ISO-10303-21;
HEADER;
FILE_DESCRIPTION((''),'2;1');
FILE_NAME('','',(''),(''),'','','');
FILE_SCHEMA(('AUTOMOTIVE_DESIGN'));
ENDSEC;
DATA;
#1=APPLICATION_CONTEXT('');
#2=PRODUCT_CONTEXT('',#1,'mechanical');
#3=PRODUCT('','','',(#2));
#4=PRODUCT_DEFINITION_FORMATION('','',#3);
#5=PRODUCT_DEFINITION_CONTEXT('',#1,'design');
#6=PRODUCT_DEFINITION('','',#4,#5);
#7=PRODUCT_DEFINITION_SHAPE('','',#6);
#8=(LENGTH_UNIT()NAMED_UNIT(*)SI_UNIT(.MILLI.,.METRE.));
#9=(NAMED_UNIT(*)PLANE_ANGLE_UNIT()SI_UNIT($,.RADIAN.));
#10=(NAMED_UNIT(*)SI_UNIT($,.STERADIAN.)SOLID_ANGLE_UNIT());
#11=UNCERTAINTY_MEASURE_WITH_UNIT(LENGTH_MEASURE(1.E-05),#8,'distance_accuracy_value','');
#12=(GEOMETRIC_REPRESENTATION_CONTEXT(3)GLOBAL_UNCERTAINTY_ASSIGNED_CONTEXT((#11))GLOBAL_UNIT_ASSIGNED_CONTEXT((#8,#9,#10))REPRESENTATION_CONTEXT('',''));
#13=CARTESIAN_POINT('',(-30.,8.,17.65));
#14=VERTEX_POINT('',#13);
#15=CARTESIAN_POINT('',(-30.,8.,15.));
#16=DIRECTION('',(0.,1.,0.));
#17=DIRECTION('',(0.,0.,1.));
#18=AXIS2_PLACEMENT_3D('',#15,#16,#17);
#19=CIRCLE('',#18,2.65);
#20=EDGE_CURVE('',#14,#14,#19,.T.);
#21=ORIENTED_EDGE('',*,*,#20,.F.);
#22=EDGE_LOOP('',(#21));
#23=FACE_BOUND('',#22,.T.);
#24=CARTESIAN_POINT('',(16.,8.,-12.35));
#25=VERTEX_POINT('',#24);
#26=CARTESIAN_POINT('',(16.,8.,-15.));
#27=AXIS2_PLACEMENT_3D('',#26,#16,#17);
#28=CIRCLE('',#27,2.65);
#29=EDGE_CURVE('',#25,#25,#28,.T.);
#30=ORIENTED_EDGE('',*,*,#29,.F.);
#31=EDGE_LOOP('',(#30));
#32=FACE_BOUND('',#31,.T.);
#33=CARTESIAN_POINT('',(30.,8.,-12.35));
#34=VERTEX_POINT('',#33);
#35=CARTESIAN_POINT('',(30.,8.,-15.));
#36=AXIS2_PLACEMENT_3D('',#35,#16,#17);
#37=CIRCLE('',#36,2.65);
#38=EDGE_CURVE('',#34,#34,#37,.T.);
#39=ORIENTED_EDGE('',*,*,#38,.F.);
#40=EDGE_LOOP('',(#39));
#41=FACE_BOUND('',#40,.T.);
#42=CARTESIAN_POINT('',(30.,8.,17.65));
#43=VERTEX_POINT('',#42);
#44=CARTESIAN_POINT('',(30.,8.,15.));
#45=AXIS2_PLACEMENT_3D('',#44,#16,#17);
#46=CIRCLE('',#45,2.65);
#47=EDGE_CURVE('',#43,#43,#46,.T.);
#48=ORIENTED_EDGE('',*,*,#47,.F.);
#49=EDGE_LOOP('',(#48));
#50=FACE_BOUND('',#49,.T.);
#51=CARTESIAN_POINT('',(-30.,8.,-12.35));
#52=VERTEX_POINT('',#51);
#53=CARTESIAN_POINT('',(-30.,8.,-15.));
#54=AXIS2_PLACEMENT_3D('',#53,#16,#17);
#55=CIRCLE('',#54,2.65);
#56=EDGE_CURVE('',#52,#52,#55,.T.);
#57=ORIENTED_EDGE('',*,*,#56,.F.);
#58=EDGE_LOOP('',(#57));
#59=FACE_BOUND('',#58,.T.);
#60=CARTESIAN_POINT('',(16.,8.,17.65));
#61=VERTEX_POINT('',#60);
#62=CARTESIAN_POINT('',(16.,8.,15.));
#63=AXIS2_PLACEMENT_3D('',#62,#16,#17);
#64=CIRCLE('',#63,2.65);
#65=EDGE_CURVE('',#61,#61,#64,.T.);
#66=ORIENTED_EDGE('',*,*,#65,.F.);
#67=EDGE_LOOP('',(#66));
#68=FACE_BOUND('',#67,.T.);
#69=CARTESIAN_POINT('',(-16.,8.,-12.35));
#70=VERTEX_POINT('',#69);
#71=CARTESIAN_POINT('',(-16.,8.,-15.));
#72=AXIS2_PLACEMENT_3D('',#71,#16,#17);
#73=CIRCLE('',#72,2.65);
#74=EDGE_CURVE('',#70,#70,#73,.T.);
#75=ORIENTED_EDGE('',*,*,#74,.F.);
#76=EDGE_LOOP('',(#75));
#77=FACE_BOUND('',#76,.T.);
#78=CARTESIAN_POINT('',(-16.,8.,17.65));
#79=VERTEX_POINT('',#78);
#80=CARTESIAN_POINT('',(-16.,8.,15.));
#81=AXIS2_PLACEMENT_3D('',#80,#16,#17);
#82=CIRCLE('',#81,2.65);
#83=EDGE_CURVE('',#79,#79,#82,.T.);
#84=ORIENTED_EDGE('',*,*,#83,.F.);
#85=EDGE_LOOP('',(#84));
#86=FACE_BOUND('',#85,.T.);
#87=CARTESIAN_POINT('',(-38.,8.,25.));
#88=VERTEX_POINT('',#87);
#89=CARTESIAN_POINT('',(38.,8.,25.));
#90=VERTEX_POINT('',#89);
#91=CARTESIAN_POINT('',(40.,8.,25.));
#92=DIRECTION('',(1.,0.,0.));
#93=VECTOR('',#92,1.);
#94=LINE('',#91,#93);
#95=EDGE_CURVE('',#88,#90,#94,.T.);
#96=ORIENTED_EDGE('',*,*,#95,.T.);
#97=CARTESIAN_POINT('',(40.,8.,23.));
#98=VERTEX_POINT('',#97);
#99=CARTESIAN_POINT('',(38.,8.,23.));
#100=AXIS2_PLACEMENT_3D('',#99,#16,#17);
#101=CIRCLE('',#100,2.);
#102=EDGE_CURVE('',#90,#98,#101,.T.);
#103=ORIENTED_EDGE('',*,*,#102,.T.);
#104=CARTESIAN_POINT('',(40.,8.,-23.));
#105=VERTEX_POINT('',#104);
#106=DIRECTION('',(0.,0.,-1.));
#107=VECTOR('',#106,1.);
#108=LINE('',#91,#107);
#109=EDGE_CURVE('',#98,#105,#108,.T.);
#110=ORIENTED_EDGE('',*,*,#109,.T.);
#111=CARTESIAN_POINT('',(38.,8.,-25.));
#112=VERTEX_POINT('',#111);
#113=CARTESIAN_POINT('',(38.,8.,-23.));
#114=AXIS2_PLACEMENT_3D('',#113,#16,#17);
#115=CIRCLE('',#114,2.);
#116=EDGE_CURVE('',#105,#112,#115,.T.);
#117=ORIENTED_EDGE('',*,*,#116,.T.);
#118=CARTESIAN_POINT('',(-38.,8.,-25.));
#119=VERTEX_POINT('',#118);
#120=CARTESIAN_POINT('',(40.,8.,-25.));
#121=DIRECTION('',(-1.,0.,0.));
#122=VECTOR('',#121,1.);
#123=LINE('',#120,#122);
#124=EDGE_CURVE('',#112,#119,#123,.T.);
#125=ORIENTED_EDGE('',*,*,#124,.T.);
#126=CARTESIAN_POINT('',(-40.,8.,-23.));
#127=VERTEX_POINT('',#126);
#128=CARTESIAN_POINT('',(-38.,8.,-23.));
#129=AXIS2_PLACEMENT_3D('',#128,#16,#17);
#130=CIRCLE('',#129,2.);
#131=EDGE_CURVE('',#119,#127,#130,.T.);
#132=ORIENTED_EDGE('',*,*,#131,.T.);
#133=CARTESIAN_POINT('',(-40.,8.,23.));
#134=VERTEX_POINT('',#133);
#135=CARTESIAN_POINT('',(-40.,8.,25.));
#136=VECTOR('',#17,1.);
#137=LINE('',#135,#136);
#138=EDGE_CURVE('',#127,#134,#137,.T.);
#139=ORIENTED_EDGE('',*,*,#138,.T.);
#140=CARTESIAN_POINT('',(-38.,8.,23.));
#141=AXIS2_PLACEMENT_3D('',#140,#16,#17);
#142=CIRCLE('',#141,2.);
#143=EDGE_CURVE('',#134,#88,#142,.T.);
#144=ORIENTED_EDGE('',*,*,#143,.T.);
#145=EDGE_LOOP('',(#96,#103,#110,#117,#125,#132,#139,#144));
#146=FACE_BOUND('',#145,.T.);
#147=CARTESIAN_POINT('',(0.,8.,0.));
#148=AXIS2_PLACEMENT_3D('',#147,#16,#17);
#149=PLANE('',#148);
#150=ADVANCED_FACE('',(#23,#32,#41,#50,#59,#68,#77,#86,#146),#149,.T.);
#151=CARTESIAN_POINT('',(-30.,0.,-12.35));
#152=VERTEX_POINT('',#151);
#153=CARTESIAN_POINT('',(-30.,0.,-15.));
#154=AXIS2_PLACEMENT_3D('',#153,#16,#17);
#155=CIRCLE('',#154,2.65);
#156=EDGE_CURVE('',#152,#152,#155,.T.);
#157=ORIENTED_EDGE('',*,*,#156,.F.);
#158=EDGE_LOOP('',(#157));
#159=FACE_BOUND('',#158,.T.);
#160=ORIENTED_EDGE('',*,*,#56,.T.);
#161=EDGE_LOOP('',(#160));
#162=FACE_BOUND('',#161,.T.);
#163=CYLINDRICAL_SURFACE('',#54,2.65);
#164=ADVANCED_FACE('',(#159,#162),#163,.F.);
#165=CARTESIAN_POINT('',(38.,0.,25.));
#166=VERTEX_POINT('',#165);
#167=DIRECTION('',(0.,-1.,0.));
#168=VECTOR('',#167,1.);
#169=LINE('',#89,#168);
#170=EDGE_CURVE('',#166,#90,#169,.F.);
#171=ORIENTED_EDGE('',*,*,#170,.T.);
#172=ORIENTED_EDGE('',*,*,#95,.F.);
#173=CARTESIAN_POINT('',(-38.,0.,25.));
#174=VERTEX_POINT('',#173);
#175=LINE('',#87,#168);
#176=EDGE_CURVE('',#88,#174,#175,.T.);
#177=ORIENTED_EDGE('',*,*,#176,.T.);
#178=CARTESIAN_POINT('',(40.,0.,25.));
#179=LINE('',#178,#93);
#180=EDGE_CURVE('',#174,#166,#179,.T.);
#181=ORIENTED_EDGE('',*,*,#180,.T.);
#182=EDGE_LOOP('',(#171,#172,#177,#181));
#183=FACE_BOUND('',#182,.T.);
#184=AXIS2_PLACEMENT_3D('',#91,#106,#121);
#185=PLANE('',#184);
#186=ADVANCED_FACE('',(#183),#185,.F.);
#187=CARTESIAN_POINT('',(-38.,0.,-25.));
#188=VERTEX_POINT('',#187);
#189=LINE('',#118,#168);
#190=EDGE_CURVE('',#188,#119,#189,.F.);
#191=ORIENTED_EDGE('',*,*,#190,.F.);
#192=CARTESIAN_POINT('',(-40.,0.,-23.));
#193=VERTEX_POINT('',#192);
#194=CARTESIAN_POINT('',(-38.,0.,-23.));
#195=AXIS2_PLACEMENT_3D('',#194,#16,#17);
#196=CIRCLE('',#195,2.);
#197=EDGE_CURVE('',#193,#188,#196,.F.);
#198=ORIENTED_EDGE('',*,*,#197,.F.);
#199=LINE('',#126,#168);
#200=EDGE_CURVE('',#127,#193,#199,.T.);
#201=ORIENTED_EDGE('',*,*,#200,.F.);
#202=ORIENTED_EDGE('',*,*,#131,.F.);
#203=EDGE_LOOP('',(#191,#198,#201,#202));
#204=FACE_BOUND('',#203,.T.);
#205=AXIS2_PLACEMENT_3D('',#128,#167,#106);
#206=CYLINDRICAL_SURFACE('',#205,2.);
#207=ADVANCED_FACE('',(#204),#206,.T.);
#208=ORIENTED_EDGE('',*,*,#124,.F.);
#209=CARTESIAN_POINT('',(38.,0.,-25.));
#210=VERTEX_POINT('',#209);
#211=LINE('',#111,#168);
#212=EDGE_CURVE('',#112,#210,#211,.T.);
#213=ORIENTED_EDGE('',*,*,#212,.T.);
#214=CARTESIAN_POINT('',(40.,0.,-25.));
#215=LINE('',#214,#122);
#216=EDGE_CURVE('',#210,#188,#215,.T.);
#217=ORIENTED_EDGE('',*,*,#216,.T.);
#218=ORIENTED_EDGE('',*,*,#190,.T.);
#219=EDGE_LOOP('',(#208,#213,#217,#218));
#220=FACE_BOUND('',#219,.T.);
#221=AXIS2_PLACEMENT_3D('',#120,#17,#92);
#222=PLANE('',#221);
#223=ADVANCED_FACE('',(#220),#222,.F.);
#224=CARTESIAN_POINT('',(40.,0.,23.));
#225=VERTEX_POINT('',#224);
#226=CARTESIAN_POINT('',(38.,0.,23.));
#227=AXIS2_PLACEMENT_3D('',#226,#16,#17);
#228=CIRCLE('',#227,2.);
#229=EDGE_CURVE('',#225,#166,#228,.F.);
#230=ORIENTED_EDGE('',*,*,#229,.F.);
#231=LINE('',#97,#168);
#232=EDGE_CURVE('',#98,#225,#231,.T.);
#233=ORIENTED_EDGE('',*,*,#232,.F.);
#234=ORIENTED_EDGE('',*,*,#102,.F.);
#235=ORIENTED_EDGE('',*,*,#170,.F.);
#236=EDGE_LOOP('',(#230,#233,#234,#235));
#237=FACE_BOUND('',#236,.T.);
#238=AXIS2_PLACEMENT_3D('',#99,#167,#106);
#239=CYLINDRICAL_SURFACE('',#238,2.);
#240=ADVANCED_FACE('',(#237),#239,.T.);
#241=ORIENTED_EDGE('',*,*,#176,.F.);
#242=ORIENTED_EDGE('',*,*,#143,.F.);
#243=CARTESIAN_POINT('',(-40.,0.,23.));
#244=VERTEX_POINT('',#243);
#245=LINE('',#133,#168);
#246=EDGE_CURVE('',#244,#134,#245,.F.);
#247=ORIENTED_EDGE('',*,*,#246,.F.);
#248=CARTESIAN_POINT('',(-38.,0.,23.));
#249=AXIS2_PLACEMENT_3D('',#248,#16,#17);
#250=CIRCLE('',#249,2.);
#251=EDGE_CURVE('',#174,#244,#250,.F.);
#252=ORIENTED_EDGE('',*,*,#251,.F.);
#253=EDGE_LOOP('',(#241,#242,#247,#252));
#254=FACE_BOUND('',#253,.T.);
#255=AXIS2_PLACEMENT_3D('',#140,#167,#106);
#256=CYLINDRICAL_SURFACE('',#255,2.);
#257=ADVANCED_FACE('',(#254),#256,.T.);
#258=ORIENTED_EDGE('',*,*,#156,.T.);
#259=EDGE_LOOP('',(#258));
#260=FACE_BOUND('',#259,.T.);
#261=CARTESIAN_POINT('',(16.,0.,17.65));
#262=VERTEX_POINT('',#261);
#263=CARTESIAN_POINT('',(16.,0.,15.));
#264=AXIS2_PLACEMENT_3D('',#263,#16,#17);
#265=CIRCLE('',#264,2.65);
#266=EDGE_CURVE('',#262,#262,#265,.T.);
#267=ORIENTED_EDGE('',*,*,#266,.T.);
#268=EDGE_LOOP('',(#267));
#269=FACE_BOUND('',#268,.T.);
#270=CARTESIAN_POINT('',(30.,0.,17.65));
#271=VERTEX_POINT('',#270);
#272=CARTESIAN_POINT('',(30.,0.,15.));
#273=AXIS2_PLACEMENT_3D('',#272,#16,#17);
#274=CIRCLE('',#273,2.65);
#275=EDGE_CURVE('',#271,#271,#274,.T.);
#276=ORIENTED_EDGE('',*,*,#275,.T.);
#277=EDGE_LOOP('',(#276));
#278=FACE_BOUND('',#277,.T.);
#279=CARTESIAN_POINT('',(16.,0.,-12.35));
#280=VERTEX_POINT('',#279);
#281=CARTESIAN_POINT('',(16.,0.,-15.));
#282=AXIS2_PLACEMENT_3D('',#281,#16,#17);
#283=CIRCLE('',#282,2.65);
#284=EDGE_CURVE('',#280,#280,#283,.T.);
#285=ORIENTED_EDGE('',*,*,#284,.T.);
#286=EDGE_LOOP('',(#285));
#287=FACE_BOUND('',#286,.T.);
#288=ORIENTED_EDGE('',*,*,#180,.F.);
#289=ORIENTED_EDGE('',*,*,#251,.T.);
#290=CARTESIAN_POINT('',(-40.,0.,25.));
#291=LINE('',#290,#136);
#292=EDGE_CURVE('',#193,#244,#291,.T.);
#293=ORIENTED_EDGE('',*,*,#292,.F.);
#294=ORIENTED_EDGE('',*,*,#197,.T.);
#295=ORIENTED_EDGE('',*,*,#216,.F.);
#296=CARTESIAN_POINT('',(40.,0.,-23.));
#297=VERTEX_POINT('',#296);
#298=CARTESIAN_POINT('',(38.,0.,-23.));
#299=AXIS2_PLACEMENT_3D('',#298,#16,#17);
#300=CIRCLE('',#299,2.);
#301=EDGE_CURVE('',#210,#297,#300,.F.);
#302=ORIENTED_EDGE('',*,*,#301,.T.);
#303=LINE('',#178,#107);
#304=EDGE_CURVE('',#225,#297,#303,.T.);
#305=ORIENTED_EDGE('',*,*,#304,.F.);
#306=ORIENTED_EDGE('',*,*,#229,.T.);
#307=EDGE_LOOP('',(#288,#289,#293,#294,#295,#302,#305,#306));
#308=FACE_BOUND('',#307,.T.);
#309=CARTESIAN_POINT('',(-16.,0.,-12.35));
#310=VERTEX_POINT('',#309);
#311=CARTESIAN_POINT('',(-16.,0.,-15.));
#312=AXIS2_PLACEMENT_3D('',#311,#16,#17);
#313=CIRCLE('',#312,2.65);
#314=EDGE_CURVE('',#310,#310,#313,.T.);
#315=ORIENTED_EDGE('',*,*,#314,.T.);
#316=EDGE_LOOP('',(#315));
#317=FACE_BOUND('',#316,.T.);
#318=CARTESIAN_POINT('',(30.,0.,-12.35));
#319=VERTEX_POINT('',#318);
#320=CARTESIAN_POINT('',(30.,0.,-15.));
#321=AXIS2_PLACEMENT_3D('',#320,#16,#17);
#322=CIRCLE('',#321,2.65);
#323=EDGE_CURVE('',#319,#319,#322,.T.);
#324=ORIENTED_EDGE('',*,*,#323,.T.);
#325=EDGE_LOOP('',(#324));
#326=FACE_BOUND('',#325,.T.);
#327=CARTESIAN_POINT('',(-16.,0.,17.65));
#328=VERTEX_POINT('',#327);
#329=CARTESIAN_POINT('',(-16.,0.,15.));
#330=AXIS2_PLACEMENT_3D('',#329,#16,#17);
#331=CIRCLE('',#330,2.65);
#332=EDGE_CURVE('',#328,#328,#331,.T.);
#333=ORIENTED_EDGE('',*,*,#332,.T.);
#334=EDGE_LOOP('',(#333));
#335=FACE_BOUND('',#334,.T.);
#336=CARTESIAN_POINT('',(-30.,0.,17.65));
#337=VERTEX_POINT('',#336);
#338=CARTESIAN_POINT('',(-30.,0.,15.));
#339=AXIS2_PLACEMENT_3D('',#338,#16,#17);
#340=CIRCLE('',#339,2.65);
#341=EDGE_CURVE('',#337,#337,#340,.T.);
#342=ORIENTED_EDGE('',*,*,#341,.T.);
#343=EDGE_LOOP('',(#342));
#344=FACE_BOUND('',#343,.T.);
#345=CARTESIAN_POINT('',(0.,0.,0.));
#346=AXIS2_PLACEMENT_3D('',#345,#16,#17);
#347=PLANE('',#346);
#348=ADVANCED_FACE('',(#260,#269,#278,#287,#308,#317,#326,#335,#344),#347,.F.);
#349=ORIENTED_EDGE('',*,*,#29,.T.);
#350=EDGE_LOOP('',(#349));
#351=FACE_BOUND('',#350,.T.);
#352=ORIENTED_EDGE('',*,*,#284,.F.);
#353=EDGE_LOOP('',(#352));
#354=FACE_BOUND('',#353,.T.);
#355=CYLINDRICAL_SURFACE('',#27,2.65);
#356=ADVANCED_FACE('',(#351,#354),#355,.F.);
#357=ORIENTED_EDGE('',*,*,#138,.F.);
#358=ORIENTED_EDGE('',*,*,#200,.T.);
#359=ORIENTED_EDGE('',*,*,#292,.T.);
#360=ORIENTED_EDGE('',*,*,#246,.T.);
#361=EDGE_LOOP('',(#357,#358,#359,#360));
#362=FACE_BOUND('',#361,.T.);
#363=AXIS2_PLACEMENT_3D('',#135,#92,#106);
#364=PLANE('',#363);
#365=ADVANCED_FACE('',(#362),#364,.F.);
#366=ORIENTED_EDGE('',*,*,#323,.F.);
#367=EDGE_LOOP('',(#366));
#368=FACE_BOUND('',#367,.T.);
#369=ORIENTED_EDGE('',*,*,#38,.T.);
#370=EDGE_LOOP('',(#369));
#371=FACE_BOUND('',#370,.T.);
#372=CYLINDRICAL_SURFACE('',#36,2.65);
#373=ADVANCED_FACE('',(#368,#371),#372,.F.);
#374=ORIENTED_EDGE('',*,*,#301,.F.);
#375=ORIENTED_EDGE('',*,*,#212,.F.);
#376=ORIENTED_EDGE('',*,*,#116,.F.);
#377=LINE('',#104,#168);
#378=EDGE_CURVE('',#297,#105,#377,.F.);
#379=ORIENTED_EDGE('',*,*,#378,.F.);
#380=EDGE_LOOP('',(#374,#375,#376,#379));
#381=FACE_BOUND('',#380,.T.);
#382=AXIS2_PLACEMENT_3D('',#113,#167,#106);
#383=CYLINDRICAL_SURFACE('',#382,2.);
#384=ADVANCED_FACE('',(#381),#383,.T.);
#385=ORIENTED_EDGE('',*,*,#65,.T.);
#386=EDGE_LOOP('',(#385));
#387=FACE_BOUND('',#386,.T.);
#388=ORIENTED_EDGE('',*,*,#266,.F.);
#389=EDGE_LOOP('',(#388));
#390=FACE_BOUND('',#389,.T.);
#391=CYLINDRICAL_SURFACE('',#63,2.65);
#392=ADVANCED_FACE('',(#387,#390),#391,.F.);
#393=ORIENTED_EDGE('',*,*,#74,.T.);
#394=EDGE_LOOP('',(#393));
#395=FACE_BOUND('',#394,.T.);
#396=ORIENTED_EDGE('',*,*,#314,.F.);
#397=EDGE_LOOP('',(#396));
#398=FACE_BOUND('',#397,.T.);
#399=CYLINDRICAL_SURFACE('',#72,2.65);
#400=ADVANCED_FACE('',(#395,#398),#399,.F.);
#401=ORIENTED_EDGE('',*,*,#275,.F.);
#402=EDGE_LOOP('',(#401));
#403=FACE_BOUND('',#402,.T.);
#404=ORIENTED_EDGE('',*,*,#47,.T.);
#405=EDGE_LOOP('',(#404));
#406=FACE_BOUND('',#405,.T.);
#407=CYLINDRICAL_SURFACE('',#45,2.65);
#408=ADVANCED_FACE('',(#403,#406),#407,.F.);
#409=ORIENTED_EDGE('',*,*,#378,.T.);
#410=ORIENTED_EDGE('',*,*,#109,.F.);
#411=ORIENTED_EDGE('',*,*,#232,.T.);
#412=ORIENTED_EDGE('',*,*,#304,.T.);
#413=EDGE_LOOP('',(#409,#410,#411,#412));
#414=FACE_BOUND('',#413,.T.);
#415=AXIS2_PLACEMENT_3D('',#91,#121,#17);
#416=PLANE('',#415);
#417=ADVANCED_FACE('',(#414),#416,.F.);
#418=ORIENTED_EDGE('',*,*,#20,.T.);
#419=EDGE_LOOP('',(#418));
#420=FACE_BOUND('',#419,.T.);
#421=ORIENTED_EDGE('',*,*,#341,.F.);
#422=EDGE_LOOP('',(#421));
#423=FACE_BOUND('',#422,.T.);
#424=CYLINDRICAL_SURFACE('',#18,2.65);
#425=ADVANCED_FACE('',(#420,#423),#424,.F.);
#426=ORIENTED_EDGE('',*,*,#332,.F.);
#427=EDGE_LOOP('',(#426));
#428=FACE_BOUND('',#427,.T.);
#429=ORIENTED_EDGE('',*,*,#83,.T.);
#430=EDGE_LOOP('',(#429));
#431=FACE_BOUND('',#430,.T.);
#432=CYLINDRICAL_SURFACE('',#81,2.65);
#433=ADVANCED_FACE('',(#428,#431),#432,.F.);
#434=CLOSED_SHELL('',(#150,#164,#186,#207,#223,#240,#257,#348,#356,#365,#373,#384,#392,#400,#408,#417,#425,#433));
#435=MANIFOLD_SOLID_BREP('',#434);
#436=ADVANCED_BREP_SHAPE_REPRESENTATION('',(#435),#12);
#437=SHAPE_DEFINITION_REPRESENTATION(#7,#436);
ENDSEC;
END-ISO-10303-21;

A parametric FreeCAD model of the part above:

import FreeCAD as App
import Part
import Sketcher
from FreeCAD import Vector


def edges_at(feature, points):
    """Names of the edges that pass closest to the given points."""
    edges = feature.Shape.Edges
    near = lambda p: min(range(len(edges)), key=lambda i: edges[i].distToShape(Part.Vertex(*p))[0])
    return sorted({f"Edge{near(p) + 1}" for p in points})


def add_polygon(sketch, points):
    """Adds a closed chain of lines whose ends are joined by coincident constraints."""
    first, n = sketch.GeometryCount, len(points)
    for a, b in zip(points, points[1:] + points[:1]):
        sketch.addGeometry(Part.LineSegment(App.Vector(*a, 0), App.Vector(*b, 0)), False)
    for i in range(n):
        sketch.addConstraint(Sketcher.Constraint("Coincident", first + i, 2, first + (i + 1) % n, 1))

doc = App.newDocument("Part")
body = doc.addObject("PartDesign::Body", "Body")

# Sketch on XZ plane
sketch1 = body.newObject("Sketcher::SketchObject", "Sketch")
sketch1.AttachmentSupport = (doc.getObject("XZ_Plane"), [""])
sketch1.MapMode = "FlatFace"
add_polygon(sketch1, [(-40, -25), (-40, 25), (40, 25), (40, -25)])  # lines 0-3
sketch1.addConstraint(Sketcher.Constraint("Vertical", 0))
sketch1.addConstraint(Sketcher.Constraint("Horizontal", 1))
sketch1.addConstraint(Sketcher.Constraint("Vertical", 2))
sketch1.addConstraint(Sketcher.Constraint("Horizontal", 3))
sketch1.addConstraint(Sketcher.Constraint("Symmetric", 0, 2, 2, 2, -1, 1))
sketch1.addConstraint(Sketcher.Constraint("DistanceX", 1, 1, 1, 2, 80.0))
sketch1.addConstraint(Sketcher.Constraint("DistanceY", 0, 1, 0, 2, 50.0))
pad1 = body.newObject("PartDesign::Pad", "Pad")
pad1.Profile = sketch1
pad1.Length = 8
pad1.Reversed = True
doc.recompute()

fillet = body.newObject("PartDesign::Fillet", "Fillet")
fillet.Base = (pad1, edges_at(pad1, [
    (-40, 4, -25),
    (40, 4, -25),
    (40, 4, 25),
    (-40, 4, 25),
]))
fillet.Radius = 2

# Sketch on XZ plane
sketch2 = body.newObject("Sketcher::SketchObject", "Sketch001")
sketch2.AttachmentSupport = (doc.getObject("XZ_Plane"), [""])
sketch2.MapMode = "FlatFace"
sketch2.AttachmentOffset = App.Placement(Vector(0, 0, -8), App.Rotation())
sketch2.addGeometry(Part.Circle(Vector(-30, -15, 0), Vector(0, 0, 1), 2.6), False)
sketch2.addGeometry(Part.Circle(Vector(-16, -15, 0), Vector(0, 0, 1), 2.6), False)
sketch2.addGeometry(Part.Circle(Vector(-16, 15, 0), Vector(0, 0, 1), 2.6), False)
sketch2.addGeometry(Part.Circle(Vector(-30, 15, 0), Vector(0, 0, 1), 2.6), False)
sketch2.addGeometry(Part.Circle(Vector(30, 15, 0), Vector(0, 0, 1), 2.6), False)
sketch2.addGeometry(Part.Circle(Vector(16, 15, 0), Vector(0, 0, 1), 2.6), False)
sketch2.addGeometry(Part.Circle(Vector(16, -15, 0), Vector(0, 0, 1), 2.6), False)
sketch2.addGeometry(Part.Circle(Vector(30, -15, 0), Vector(0, 0, 1), 2.6), False)
sketch2.addConstraint(Sketcher.Constraint("Equal", 0, 1))
sketch2.addConstraint(Sketcher.Constraint("Equal", 1, 2))
sketch2.addConstraint(Sketcher.Constraint("Equal", 2, 3))
sketch2.addConstraint(Sketcher.Constraint("Equal", 3, 4))
sketch2.addConstraint(Sketcher.Constraint("Equal", 4, 5))
sketch2.addConstraint(Sketcher.Constraint("Equal", 5, 6))
sketch2.addConstraint(Sketcher.Constraint("Equal", 6, 7))
sketch2.addConstraint(Sketcher.Constraint("Symmetric", 0, 3, 4, 3, -1, 1))
sketch2.addConstraint(Sketcher.Constraint("Symmetric", 1, 3, 5, 3, -1, 1))
sketch2.addConstraint(Sketcher.Constraint("Symmetric", 2, 3, 6, 3, -1, 1))
sketch2.addConstraint(Sketcher.Constraint("Symmetric", 3, 3, 7, 3, -1, 1))
sketch2.addConstraint(Sketcher.Constraint("Symmetric", 3, 3, 4, 3, -2))
sketch2.addConstraint(Sketcher.Constraint("Symmetric", 2, 3, 5, 3, -2))
sketch2.addConstraint(Sketcher.Constraint("Horizontal", 0, 3, 1, 3))
sketch2.addConstraint(Sketcher.Constraint("Diameter", 0, 5.3))
sketch2.addConstraint(Sketcher.Constraint("DistanceX", 0, 3, -1, 1, 30.0))
sketch2.addConstraint(Sketcher.Constraint("DistanceY", 0, 3, -1, 1, 15.0))
sketch2.addConstraint(Sketcher.Constraint("DistanceX", 1, 3, -1, 1, 16.0))
doc.recompute()
hole = body.newObject("PartDesign::Hole", "Hole")
hole.Profile = sketch2
hole.ThreadType = "None"
hole.Diameter = 5.3
hole.DepthType = "Dimension"
hole.Depth = 8
hole.DrillPoint = "Angled"
hole.DrillPointAngle = 118
hole.Reversed = True

doc.recompute()
